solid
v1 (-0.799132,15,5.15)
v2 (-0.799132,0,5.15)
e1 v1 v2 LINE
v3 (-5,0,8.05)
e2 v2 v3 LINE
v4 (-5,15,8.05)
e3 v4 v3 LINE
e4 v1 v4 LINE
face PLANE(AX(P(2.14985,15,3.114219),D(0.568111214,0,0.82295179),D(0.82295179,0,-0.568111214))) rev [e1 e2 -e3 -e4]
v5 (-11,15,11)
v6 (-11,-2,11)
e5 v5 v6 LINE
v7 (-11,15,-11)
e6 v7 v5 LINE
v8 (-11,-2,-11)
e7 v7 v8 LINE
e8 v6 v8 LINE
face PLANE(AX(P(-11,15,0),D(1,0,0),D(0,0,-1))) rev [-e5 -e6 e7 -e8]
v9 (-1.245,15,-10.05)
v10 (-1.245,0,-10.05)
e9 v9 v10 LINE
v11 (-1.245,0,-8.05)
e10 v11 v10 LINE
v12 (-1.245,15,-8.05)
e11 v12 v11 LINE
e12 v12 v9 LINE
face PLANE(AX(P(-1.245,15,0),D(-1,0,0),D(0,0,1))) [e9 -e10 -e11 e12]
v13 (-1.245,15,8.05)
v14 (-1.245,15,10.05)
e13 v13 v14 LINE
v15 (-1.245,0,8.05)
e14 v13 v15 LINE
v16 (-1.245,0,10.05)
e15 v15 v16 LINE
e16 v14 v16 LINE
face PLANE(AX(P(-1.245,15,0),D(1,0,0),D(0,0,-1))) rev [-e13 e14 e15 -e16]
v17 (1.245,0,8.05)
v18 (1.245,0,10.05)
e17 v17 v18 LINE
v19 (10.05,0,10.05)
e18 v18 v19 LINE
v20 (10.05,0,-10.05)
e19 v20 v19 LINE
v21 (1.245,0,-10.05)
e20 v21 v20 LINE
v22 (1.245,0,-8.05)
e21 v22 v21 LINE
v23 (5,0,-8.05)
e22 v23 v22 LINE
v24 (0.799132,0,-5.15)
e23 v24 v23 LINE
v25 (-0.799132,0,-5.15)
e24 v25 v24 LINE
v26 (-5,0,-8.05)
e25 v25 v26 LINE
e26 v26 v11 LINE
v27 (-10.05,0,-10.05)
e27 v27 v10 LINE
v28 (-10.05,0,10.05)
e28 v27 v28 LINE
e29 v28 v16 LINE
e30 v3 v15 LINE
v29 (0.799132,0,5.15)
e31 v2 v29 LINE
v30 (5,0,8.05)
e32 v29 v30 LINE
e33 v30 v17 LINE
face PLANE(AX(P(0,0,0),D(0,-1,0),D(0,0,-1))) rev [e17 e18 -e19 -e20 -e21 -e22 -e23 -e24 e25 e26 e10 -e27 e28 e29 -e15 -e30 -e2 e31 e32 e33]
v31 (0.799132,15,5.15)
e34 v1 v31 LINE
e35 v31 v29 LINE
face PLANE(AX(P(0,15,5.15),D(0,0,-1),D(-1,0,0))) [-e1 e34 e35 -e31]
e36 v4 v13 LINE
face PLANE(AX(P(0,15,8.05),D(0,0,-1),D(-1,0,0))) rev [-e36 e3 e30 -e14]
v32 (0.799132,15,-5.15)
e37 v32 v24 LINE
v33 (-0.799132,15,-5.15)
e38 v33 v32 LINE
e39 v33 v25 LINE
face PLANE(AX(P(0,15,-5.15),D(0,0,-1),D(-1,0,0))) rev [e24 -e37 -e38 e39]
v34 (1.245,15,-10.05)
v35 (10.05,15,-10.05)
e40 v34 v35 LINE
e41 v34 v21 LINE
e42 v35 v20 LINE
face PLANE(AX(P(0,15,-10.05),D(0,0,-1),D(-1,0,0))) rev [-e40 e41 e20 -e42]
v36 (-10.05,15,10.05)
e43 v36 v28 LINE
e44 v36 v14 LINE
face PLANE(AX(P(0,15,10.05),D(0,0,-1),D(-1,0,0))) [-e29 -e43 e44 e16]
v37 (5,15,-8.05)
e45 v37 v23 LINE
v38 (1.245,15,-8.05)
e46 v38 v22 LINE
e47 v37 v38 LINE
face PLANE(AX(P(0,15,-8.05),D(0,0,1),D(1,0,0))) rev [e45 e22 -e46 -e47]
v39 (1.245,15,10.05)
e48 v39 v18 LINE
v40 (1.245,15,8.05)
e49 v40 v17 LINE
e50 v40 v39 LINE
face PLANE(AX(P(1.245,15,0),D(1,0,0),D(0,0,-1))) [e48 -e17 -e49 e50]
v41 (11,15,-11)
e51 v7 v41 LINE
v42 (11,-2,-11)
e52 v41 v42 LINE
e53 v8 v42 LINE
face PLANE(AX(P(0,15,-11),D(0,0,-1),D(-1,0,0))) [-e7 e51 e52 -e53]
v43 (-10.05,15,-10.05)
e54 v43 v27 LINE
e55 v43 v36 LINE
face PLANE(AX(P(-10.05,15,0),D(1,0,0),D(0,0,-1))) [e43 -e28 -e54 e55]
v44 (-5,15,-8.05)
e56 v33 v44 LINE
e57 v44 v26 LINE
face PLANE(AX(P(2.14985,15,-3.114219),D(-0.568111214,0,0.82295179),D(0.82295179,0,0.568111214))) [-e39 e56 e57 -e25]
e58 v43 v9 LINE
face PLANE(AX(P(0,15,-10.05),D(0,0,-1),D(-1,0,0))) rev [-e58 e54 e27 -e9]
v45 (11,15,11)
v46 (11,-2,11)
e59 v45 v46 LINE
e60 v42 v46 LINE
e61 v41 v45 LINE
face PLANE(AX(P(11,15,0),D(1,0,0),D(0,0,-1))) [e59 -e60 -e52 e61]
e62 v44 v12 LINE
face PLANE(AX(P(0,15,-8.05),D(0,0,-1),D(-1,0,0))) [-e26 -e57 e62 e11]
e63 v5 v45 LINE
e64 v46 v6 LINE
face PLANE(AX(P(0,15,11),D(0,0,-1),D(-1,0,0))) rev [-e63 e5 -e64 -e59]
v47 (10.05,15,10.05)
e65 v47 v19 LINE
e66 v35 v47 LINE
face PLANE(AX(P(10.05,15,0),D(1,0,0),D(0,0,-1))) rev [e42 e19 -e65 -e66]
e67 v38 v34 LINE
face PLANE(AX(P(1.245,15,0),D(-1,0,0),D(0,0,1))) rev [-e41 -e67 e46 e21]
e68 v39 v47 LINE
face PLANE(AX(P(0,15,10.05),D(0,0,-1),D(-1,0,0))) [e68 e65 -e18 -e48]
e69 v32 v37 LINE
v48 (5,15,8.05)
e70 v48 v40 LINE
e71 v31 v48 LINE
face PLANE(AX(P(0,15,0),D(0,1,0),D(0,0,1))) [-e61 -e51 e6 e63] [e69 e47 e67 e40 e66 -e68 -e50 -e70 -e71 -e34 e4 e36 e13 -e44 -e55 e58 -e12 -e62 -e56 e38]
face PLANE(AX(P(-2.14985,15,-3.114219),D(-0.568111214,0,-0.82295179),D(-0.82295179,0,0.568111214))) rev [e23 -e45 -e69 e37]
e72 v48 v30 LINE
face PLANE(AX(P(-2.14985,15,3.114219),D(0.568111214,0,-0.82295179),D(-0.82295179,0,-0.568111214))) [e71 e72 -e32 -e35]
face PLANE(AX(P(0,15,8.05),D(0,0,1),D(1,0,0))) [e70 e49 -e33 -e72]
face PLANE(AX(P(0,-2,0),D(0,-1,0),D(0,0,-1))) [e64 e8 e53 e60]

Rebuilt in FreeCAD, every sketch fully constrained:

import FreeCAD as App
import Part
import Sketcher

V = App.Vector

doc = App.newDocument("Part")
body = doc.addObject("PartDesign::Body", "Body")

# Sketch on XZ plane
sketch1 = body.newObject("Sketcher::SketchObject", "Sketch")
sketch1.AttachmentSupport = (doc.getObject("XZ_Plane"), [""])
sketch1.MapMode = "FlatFace"
sketch1.addGeometry([
    Part.LineSegment(V(-11, -11, 0), V(-11, 11, 0)),  # 0
    Part.LineSegment(V(-11, 11, 0), V(11, 11, 0)),  # 1
    Part.LineSegment(V(11, 11, 0), V(11, -11, 0)),  # 2
    Part.LineSegment(V(11, -11, 0), V(-11, -11, 0)),  # 3
    Part.LineSegment(V(-1.2, 10.1, 0), V(-10.1, 10.1, 0)),  # 4
    Part.LineSegment(V(-10.1, 10.1, 0), V(-10.1, -10.1, 0)),  # 5
    Part.LineSegment(V(-10.1, -10.1, 0), V(-1.2, -10.1, 0)),  # 6
    Part.LineSegment(V(-1.2, -10.1, 0), V(-1.2, -8.1, 0)),  # 7
    Part.LineSegment(V(-1.2, -8.1, 0), V(-5, -8.1, 0)),  # 8
    Part.LineSegment(V(-5, -8.1, 0), V(-0.8, -5.2, 0)),  # 9
    Part.LineSegment(V(-0.8, -5.2, 0), V(0.8, -5.2, 0)),  # 10
    Part.LineSegment(V(0.8, -5.2, 0), V(5, -8.1, 0)),  # 11
    Part.LineSegment(V(5, -8.1, 0), V(1.2, -8.1, 0)),  # 12
    Part.LineSegment(V(1.2, -8.1, 0), V(1.2, -10.1, 0)),  # 13
    Part.LineSegment(V(1.2, -10.1, 0), V(10.1, -10.1, 0)),  # 14
    Part.LineSegment(V(10.1, -10.1, 0), V(10.1, 10.1, 0)),  # 15
    Part.LineSegment(V(10.1, 10.1, 0), V(1.2, 10.1, 0)),  # 16
    Part.LineSegment(V(1.2, 10.1, 0), V(1.2, 8.1, 0)),  # 17
    Part.LineSegment(V(1.2, 8.1, 0), V(5, 8.1, 0)),  # 18
    Part.LineSegment(V(5, 8.1, 0), V(0.8, 5.2, 0)),  # 19
    Part.LineSegment(V(0.8, 5.2, 0), V(-0.8, 5.2, 0)),  # 20
    Part.LineSegment(V(-0.8, 5.2, 0), V(-5, 8.1, 0)),  # 21
    Part.LineSegment(V(-5, 8.1, 0), V(-1.2, 8.1, 0)),  # 22
    Part.LineSegment(V(-1.2, 8.1, 0), V(-1.2, 10.1, 0)),  # 23
], False)
sketch1.addConstraint([
    Sketcher.Constraint("Coincident", 0, 2, 1, 1),
    Sketcher.Constraint("Coincident", 1, 2, 2, 1),
    Sketcher.Constraint("Coincident", 2, 2, 3, 1),
    Sketcher.Constraint("Coincident", 3, 2, 0, 1),
    Sketcher.Constraint("Coincident", 4, 2, 5, 1),
    Sketcher.Constraint("Coincident", 5, 2, 6, 1),
    Sketcher.Constraint("Coincident", 6, 2, 7, 1),
    Sketcher.Constraint("Coincident", 7, 2, 8, 1),
    Sketcher.Constraint("Coincident", 8, 2, 9, 1),
    Sketcher.Constraint("Coincident", 9, 2, 10, 1),
    Sketcher.Constraint("Coincident", 10, 2, 11, 1),
    Sketcher.Constraint("Coincident", 11, 2, 12, 1),
    Sketcher.Constraint("Coincident", 12, 2, 13, 1),
    Sketcher.Constraint("Coincident", 13, 2, 14, 1),
    Sketcher.Constraint("Coincident", 14, 2, 15, 1),
    Sketcher.Constraint("Coincident", 15, 2, 16, 1),
    Sketcher.Constraint("Coincident", 16, 2, 17, 1),
    Sketcher.Constraint("Coincident", 17, 2, 18, 1),
    Sketcher.Constraint("Coincident", 18, 2, 19, 1),
    Sketcher.Constraint("Coincident", 19, 2, 20, 1),
    Sketcher.Constraint("Coincident", 20, 2, 21, 1),
    Sketcher.Constraint("Coincident", 21, 2, 22, 1),
    Sketcher.Constraint("Coincident", 22, 2, 23, 1),
    Sketcher.Constraint("Coincident", 23, 2, 4, 1),
    Sketcher.Constraint("Vertical", 0),
    Sketcher.Constraint("Horizontal", 1),
    Sketcher.Constraint("Vertical", 2),
    Sketcher.Constraint("Horizontal", 3),
    Sketcher.Constraint("Horizontal", 4),
    Sketcher.Constraint("Vertical", 5),
    Sketcher.Constraint("Horizontal", 6),
    Sketcher.Constraint("Vertical", 7),
    Sketcher.Constraint("Horizontal", 8),
    Sketcher.Constraint("Horizontal", 10),
    Sketcher.Constraint("Horizontal", 12),
    Sketcher.Constraint("Vertical", 13),
    Sketcher.Constraint("Horizontal", 14),
    Sketcher.Constraint("Vertical", 15),
    Sketcher.Constraint("Horizontal", 16),
    Sketcher.Constraint("Vertical", 17),
    Sketcher.Constraint("Horizontal", 18),
    Sketcher.Constraint("Horizontal", 20),
    Sketcher.Constraint("Horizontal", 22),
    Sketcher.Constraint("Vertical", 23),
    Sketcher.Constraint("Symmetric", 0, 2, 2, 2, -1, 1),
    Sketcher.Constraint("Symmetric", 4, 2, 14, 2, -1, 1),
    Sketcher.Constraint("Symmetric", 6, 2, 16, 2, -1, 1),
    Sketcher.Constraint("Symmetric", 8, 2, 18, 2, -1, 1),
    Sketcher.Constraint("Symmetric", 9, 2, 19, 2, -1, 1),
    Sketcher.Constraint("Symmetric", 11, 2, 21, 2, -1, 1),
    Sketcher.Constraint("Symmetric", 8, 2, 11, 2, -2),
    Sketcher.Constraint("Symmetric", 6, 2, 13, 2, -2),
    Sketcher.Constraint("Parallel", 11, 21),
    Sketcher.Constraint("Vertical", 10, 2, 19, 2),
    Sketcher.Constraint("Vertical", 7, 2, 22, 2),
    Sketcher.Constraint("Equal", 3, 0),
    Sketcher.Constraint("DistanceX", 1, 1, 1, 2, 22.0),
    Sketcher.Constraint("DistanceY", 7, 1, 7, 2, 2.0),
    Sketcher.Constraint("DistanceY", 5, 2, 5, 1, 20.1),
    Sketcher.Constraint("DistanceX", 8, 2, -1, 1, 5.0),
    Sketcher.Constraint("DistanceY", 7, 2, 9, 2, 2.9),
    Sketcher.Constraint("DistanceX", 4, 2, 15, 2, 20.1),
    Sketcher.Constraint("DistanceX", 4, 2, 4, 1, 8.805),
    Sketcher.Constraint("DistanceX", 10, 1, 10, 2, 1.598264),
])
pad1 = body.newObject("PartDesign::Pad", "Pad")
pad1.Profile = sketch1
pad1.Length = 15
pad1.Reversed = True

# Sketch on XZ plane
sketch2 = body.newObject("Sketcher::SketchObject", "Sketch001")
sketch2.AttachmentSupport = (doc.getObject("XZ_Plane"), [""])
sketch2.MapMode = "FlatFace"
sketch2.addGeometry([
    Part.LineSegment(V(-11, 11, 0), V(-11, -11, 0)),
    Part.LineSegment(V(-11, -11, 0), V(11, -11, 0)),
    Part.LineSegment(V(11, -11, 0), V(11, 11, 0)),
    Part.LineSegment(V(11, 11, 0), V(-11, 11, 0)),
], False)
sketch2.addConstraint([
    Sketcher.Constraint("Coincident", 0, 2, 1, 1),
    Sketcher.Constraint("Coincident", 1, 2, 2, 1),
    Sketcher.Constraint("Coincident", 2, 2, 3, 1),
    Sketcher.Constraint("Coincident", 3, 2, 0, 1),
    Sketcher.Constraint("Vertical", 0),
    Sketcher.Constraint("Horizontal", 1),
    Sketcher.Constraint("Vertical", 2),
    Sketcher.Constraint("Horizontal", 3),
    Sketcher.Constraint("Symmetric", 0, 2, 2, 2, -1, 1),
    Sketcher.Constraint("Equal", 3, 0),
    Sketcher.Constraint("DistanceX", 1, 1, 1, 2, 22.0),
])
pad2 = body.newObject("PartDesign::Pad", "Pad001")
pad2.Profile = sketch2
pad2.Length = 2

doc.recompute()
